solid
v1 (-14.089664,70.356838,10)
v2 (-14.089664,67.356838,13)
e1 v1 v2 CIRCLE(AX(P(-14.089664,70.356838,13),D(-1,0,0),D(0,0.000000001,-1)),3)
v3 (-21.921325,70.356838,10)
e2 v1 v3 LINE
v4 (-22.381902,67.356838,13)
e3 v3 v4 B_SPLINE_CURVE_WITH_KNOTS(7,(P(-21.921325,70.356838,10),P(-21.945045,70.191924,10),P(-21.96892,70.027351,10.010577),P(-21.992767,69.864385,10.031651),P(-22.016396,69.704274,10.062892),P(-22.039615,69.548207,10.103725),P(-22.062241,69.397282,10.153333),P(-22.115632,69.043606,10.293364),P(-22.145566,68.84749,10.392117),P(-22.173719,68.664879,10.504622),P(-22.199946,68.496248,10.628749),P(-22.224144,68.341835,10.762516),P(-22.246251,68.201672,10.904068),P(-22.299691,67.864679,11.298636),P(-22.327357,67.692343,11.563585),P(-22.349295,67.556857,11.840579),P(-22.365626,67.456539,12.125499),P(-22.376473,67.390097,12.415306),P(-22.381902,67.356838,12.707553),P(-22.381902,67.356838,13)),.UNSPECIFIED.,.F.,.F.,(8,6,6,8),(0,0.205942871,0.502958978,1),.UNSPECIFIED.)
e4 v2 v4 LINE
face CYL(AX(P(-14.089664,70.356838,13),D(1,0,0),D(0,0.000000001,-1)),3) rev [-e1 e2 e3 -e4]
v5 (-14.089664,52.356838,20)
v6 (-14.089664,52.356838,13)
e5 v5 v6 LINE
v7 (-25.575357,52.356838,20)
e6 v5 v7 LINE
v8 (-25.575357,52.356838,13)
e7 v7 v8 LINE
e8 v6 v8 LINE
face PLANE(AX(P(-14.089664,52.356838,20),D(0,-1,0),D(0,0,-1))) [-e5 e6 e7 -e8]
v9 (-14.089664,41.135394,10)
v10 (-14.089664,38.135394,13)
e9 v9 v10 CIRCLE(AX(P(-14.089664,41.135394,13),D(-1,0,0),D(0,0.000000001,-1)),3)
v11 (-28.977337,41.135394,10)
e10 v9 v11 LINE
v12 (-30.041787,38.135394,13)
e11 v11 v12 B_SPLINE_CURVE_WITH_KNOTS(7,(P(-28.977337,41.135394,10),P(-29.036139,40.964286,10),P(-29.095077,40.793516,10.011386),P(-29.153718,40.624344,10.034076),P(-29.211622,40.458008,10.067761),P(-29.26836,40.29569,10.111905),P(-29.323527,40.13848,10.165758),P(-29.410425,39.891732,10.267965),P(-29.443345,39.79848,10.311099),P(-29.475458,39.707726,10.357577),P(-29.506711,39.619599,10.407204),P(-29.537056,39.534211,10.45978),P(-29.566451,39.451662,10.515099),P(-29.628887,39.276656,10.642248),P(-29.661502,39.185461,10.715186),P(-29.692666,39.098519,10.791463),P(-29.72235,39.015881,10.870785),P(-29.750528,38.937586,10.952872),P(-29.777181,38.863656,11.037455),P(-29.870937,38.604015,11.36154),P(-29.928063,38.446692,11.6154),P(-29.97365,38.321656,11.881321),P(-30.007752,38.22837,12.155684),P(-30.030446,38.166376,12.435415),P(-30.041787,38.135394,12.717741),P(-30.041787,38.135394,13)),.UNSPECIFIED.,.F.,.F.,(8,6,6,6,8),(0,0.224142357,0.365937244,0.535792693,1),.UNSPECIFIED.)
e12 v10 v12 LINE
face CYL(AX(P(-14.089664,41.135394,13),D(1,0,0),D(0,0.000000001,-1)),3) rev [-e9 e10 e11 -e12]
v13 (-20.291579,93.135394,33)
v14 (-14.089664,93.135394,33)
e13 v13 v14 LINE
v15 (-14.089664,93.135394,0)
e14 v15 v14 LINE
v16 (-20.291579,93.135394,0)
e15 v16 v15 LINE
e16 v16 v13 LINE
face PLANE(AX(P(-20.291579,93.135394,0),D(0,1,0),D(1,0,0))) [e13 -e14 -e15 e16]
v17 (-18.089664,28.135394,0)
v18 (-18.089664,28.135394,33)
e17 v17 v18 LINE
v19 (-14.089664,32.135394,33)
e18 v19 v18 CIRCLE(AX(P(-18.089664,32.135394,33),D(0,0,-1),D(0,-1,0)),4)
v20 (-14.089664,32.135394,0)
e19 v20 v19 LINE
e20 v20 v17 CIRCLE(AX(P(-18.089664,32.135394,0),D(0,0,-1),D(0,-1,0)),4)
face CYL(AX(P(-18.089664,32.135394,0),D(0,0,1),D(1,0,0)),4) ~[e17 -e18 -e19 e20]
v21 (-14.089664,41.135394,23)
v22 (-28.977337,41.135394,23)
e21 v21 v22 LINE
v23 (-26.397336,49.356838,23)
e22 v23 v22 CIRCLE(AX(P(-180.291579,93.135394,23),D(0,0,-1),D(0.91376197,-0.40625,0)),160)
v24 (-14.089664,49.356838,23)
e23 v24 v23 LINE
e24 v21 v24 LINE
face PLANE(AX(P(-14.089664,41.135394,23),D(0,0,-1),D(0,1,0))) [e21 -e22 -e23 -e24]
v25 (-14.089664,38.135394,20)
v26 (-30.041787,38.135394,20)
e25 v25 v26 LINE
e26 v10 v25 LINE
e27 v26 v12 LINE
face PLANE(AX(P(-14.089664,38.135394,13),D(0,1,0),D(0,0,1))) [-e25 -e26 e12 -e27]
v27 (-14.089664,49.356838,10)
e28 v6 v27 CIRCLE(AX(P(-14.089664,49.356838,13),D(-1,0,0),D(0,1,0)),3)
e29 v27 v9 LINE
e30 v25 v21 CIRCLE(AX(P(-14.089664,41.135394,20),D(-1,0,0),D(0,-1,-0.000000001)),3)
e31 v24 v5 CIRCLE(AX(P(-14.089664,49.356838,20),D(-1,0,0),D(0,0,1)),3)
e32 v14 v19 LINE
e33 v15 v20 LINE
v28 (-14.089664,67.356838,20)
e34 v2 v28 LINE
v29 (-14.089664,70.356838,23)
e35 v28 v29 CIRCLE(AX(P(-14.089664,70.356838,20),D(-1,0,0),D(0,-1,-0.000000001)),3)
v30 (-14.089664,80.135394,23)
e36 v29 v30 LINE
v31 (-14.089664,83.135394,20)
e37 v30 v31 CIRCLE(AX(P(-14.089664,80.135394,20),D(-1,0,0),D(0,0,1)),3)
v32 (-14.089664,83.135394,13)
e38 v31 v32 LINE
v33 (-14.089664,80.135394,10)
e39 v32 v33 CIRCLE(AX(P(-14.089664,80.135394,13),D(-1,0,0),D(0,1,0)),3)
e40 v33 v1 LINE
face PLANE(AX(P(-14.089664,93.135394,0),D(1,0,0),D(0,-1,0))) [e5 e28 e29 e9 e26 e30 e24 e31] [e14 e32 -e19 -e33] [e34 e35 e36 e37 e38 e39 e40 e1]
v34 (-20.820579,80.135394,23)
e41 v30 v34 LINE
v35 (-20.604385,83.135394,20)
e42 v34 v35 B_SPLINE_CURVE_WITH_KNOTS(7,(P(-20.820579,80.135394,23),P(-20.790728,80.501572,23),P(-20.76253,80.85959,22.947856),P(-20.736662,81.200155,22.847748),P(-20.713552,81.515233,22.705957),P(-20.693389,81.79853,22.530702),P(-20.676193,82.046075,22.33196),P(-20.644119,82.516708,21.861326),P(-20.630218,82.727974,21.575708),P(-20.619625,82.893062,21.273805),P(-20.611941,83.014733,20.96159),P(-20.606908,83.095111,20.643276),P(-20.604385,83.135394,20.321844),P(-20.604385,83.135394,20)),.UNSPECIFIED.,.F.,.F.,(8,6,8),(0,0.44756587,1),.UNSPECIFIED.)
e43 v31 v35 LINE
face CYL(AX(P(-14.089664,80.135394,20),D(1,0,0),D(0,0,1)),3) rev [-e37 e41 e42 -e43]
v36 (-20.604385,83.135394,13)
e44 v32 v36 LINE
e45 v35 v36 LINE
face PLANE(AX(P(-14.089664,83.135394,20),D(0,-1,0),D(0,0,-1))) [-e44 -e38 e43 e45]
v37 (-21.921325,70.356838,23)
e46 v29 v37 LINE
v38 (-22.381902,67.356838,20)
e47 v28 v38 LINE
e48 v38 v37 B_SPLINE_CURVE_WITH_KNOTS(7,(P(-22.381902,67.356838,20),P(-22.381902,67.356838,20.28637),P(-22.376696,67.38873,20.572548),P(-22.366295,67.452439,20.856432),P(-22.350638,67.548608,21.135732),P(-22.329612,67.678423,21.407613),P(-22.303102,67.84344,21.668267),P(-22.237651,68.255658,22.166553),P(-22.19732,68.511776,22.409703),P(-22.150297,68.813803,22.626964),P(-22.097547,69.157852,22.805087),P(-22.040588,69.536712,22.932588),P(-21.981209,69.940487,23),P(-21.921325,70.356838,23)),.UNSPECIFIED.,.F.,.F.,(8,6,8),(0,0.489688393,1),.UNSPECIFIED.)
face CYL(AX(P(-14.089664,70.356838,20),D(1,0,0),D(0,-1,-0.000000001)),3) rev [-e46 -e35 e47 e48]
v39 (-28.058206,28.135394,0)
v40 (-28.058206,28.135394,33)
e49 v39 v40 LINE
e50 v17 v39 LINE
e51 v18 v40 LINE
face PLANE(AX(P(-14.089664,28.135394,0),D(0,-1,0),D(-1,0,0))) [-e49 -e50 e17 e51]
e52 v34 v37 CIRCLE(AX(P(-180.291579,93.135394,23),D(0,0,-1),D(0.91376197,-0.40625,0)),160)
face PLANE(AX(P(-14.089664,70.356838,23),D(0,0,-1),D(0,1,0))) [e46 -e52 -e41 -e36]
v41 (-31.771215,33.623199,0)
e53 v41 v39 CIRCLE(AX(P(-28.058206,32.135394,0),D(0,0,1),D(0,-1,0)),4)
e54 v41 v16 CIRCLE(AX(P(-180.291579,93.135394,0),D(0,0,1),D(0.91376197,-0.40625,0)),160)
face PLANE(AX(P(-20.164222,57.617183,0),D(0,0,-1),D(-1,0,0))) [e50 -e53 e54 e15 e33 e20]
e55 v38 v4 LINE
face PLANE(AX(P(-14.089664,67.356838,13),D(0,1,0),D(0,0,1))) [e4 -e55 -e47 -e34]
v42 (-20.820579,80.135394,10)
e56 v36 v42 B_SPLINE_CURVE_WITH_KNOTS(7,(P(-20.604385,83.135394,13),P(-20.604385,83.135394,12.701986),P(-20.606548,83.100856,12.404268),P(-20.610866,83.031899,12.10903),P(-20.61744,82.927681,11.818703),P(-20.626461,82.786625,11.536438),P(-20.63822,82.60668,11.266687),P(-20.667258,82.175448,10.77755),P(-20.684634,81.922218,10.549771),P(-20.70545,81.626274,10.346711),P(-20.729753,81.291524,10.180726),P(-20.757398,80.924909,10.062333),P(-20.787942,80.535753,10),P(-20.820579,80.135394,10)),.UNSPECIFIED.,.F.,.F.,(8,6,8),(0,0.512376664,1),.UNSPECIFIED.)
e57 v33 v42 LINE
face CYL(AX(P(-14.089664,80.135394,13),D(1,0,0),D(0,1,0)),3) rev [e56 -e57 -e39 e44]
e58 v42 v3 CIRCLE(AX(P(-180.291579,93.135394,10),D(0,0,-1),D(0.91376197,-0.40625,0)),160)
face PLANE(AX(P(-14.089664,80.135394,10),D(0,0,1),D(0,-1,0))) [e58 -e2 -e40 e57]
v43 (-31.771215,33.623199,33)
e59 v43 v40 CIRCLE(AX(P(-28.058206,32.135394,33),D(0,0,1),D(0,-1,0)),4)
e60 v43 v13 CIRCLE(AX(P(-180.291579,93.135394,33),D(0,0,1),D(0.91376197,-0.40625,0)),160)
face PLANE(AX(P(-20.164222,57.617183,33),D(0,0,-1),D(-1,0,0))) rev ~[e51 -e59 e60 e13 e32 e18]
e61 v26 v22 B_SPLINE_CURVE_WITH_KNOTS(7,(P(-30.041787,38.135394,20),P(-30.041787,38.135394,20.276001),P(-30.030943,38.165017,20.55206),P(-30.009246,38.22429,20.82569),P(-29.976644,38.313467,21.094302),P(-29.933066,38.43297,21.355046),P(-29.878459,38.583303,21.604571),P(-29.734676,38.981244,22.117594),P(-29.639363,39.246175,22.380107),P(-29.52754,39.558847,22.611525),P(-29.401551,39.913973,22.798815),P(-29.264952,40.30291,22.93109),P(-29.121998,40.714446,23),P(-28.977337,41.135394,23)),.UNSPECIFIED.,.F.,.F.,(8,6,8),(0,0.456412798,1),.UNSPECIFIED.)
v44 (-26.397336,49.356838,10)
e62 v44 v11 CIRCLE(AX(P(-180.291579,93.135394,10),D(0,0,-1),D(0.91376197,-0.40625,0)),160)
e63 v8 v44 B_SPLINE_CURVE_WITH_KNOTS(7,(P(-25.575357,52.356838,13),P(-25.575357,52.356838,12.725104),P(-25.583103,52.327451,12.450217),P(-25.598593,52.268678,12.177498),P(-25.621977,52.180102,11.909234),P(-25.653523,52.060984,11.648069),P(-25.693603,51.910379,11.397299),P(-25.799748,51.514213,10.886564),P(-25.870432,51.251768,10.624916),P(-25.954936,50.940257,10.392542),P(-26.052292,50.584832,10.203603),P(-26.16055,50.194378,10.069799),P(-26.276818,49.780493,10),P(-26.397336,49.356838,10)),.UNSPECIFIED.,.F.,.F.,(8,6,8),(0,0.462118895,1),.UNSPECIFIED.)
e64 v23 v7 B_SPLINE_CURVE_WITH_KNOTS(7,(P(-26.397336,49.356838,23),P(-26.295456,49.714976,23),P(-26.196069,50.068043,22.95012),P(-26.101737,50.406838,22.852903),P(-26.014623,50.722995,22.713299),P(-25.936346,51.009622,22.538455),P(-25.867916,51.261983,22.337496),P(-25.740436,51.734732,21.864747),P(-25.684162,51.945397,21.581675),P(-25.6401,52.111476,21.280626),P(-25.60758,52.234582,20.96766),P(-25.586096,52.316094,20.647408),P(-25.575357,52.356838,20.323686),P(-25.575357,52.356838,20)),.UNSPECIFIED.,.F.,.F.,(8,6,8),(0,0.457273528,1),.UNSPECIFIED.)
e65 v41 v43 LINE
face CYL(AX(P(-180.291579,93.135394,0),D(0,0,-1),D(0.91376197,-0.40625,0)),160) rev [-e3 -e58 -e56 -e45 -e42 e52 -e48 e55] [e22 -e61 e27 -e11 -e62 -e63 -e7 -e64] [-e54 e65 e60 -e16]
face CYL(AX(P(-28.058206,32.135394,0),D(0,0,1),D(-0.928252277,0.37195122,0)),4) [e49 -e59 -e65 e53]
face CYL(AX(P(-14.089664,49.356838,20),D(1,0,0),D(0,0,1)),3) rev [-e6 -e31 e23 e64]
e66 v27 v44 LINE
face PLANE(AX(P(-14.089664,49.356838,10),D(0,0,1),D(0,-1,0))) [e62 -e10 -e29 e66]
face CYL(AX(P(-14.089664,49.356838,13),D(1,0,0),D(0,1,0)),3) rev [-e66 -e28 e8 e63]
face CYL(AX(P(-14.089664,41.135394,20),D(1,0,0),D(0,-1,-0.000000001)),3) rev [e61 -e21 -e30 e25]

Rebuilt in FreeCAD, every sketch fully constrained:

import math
import FreeCAD as App
import Part
import Sketcher


def edges_at(feature, points):
    """Names of the edges that pass closest to the given points."""
    edges = feature.Shape.Edges
    near = lambda p: min(range(len(edges)), key=lambda i: edges[i].distToShape(Part.Vertex(*p))[0])
    return sorted({f"Edge{near(p) + 1}" for p in points})

doc = App.newDocument("Part")
body = doc.addObject("PartDesign::Body", "Body")

sketch1 = doc.addObject("Sketcher::SketchObject", "Sketch")
body.addObject(sketch1)
sketch1.AttachmentSupport = (doc.XY_Plane, [""])
sketch1.MapMode = "FlatFace"
sketch1.addGeometry(Part.LineSegment(App.Vector(-14, 93, 0), App.Vector(-20, 93, 0)), False)
sketch1.addGeometry(Part.ArcOfCircle(Part.Circle(App.Vector(-180, 93, 0), App.Vector(0, 0, 1), 160), math.radians(-24), math.radians(0)), False)
sketch1.addGeometry(Part.LineSegment(App.Vector(-34, 28, 0), App.Vector(-14, 28, 0)), False)
sketch1.addGeometry(Part.LineSegment(App.Vector(-14, 28, 0), App.Vector(-14, 93, 0)), False)
sketch1.addConstraint(Sketcher.Constraint("Coincident", 0, 2, 1, 2))
sketch1.addConstraint(Sketcher.Constraint("Coincident", 1, 1, 2, 1))
sketch1.addConstraint(Sketcher.Constraint("Coincident", 2, 2, 3, 1))
sketch1.addConstraint(Sketcher.Constraint("Coincident", 3, 2, 0, 1))
sketch1.addConstraint(Sketcher.Constraint("Horizontal", 0))
sketch1.addConstraint(Sketcher.Constraint("Horizontal", 2))
sketch1.addConstraint(Sketcher.Constraint("Vertical", 3))
sketch1.addConstraint(Sketcher.Constraint("Horizontal", 1, 3, 0, 2))
sketch1.addConstraint(Sketcher.Constraint("Radius", 1, 160.0))
sketch1.addConstraint(Sketcher.Constraint("DistanceX", 2, 1, 2, 2, 20.0))
sketch1.addConstraint(Sketcher.Constraint("DistanceY", 3, 1, 3, 2, 65.0))
sketch1.addConstraint(Sketcher.Constraint("DistanceX", 1, 3, -1, 1, 180.291579))
sketch1.addConstraint(Sketcher.Constraint("DistanceY", -1, 1, 1, 3, 93.135394))
pad1 = doc.addObject("PartDesign::Pad", "Pad")
body.addObject(pad1)
pad1.Profile = sketch1
pad1.Length = 33

sketch2 = doc.addObject("Sketcher::SketchObject", "Sketch001")
body.addObject(sketch2)
sketch2.AttachmentSupport = (doc.YZ_Plane, [""])
sketch2.MapMode = "FlatFace"
sketch2.AttachmentOffset = App.Placement(App.Vector(0, 0, -14.089664), App.Rotation())
sketch2.addGeometry(Part.LineSegment(App.Vector(83.1, 13, 0), App.Vector(83.1, 20, 0)), False)
sketch2.addGeometry(Part.ArcOfCircle(Part.Circle(App.Vector(80.1, 20, 0), App.Vector(0, 0, 1), 3), math.radians(0), math.radians(90)), False)
sketch2.addGeometry(Part.LineSegment(App.Vector(80.1, 23, 0), App.Vector(70.4, 23, 0)), False)
sketch2.addGeometry(Part.ArcOfCircle(Part.Circle(App.Vector(70.4, 20, 0), App.Vector(0, 0, 1), 3), math.radians(90), math.radians(180)), False)
sketch2.addGeometry(Part.LineSegment(App.Vector(67.4, 20, 0), App.Vector(67.4, 13, 0)), False)
sketch2.addGeometry(Part.ArcOfCircle(Part.Circle(App.Vector(70.4, 13, 0), App.Vector(0, 0, 1), 3), math.radians(180), math.radians(270)), False)
sketch2.addGeometry(Part.LineSegment(App.Vector(70.4, 10, 0), App.Vector(80.1, 10, 0)), False)
sketch2.addGeometry(Part.ArcOfCircle(Part.Circle(App.Vector(80.1, 13, 0), App.Vector(0, 0, 1), 3), math.radians(-90), math.radians(0)), False)
sketch2.addGeometry(Part.LineSegment(App.Vector(52.4, 13, 0), App.Vector(52.4, 20, 0)), False)
sketch2.addGeometry(Part.ArcOfCircle(Part.Circle(App.Vector(49.4, 20, 0), App.Vector(0, 0, 1), 3), math.radians(0), math.radians(90)), False)
sketch2.addGeometry(Part.LineSegment(App.Vector(49.4, 23, 0), App.Vector(41.1, 23, 0)), False)
sketch2.addGeometry(Part.ArcOfCircle(Part.Circle(App.Vector(41.1, 20, 0), App.Vector(0, 0, 1), 3), math.radians(90), math.radians(180)), False)
sketch2.addGeometry(Part.LineSegment(App.Vector(38.1, 20, 0), App.Vector(38.1, 13, 0)), False)
sketch2.addGeometry(Part.ArcOfCircle(Part.Circle(App.Vector(41.1, 13, 0), App.Vector(0, 0, 1), 3), math.radians(180), math.radians(270)), False)
sketch2.addGeometry(Part.LineSegment(App.Vector(41.1, 10, 0), App.Vector(49.4, 10, 0)), False)
sketch2.addGeometry(Part.ArcOfCircle(Part.Circle(App.Vector(49.4, 13, 0), App.Vector(0, 0, 1), 3), math.radians(-90), math.radians(0)), False)
sketch2.addConstraint(Sketcher.Constraint("Tangent", 0, 2, 1, 1))
sketch2.addConstraint(Sketcher.Constraint("Tangent", 1, 2, 2, 1))
sketch2.addConstraint(Sketcher.Constraint("Tangent", 2, 2, 3, 1))
sketch2.addConstraint(Sketcher.Constraint("Tangent", 3, 2, 4, 1))
sketch2.addConstraint(Sketcher.Constraint("Tangent", 4, 2, 5, 1))
sketch2.addConstraint(Sketcher.Constraint("Tangent", 5, 2, 6, 1))
sketch2.addConstraint(Sketcher.Constraint("Tangent", 6, 2, 7, 1))
sketch2.addConstraint(Sketcher.Constraint("Tangent", 7, 2, 0, 1))
sketch2.addConstraint(Sketcher.Constraint("Tangent", 8, 2, 9, 1))
sketch2.addConstraint(Sketcher.Constraint("Tangent", 9, 2, 10, 1))
sketch2.addConstraint(Sketcher.Constraint("Tangent", 10, 2, 11, 1))
sketch2.addConstraint(Sketcher.Constraint("Tangent", 11, 2, 12, 1))
sketch2.addConstraint(Sketcher.Constraint("Tangent", 12, 2, 13, 1))
sketch2.addConstraint(Sketcher.Constraint("Tangent", 13, 2, 14, 1))
sketch2.addConstraint(Sketcher.Constraint("Tangent", 14, 2, 15, 1))
sketch2.addConstraint(Sketcher.Constraint("Tangent", 15, 2, 8, 1))
sketch2.addConstraint(Sketcher.Constraint("Vertical", 0))
sketch2.addConstraint(Sketcher.Constraint("Horizontal", 2))
sketch2.addConstraint(Sketcher.Constraint("Vertical", 4))
sketch2.addConstraint(Sketcher.Constraint("Horizontal", 6))
sketch2.addConstraint(Sketcher.Constraint("Vertical", 8))
sketch2.addConstraint(Sketcher.Constraint("Horizontal", 10))
sketch2.addConstraint(Sketcher.Constraint("Vertical", 12))
sketch2.addConstraint(Sketcher.Constraint("Horizontal", 14))
sketch2.addConstraint(Sketcher.Constraint("Equal", 1, 3))
sketch2.addConstraint(Sketcher.Constraint("Equal", 3, 5))
sketch2.addConstraint(Sketcher.Constraint("Equal", 5, 7))
sketch2.addConstraint(Sketcher.Constraint("Equal", 7, 9))
sketch2.addConstraint(Sketcher.Constraint("Equal", 9, 11))
sketch2.addConstraint(Sketcher.Constraint("Equal", 11, 13))
sketch2.addConstraint(Sketcher.Constraint("Equal", 13, 15))
sketch2.addConstraint(Sketcher.Constraint("Horizontal", 3, 3, 9, 3))
sketch2.addConstraint(Sketcher.Constraint("Horizontal", 7, 3, 13, 3))
sketch2.addConstraint(Sketcher.Constraint("Radius", 1, 3.0))
sketch2.addConstraint(Sketcher.Constraint("DistanceY", 0, 1, 0, 2, 7.0))
sketch2.addConstraint(Sketcher.Constraint("DistanceY", -1, 1, 1, 3, 20.0))
sketch2.addConstraint(Sketcher.Constraint("DistanceX", 9, 3, 3, 3, 21.0))
sketch2.addConstraint(Sketcher.Constraint("DistanceX", 11, 3, 1, 3, 39.0))
sketch2.addConstraint(Sketcher.Constraint("DistanceX", 2, 2, 2, 1, 9.778555))
sketch2.addConstraint(Sketcher.Constraint("DistanceX", -1, 1, 3, 3, 70.356838))
pocket1 = doc.addObject("PartDesign::Pocket", "Pocket")
body.addObject(pocket1)
pocket1.Profile = sketch2
pocket1.Length = 33
doc.recompute()

fillet = doc.addObject("PartDesign::Fillet", "Fillet")
body.addObject(fillet)
fillet.Base = (pocket1, edges_at(pocket1, [(-14.09, 28.135, 16.5), (-34.09, 28.135, 16.5)]))
fillet.Radius = 4

doc.recompute()
